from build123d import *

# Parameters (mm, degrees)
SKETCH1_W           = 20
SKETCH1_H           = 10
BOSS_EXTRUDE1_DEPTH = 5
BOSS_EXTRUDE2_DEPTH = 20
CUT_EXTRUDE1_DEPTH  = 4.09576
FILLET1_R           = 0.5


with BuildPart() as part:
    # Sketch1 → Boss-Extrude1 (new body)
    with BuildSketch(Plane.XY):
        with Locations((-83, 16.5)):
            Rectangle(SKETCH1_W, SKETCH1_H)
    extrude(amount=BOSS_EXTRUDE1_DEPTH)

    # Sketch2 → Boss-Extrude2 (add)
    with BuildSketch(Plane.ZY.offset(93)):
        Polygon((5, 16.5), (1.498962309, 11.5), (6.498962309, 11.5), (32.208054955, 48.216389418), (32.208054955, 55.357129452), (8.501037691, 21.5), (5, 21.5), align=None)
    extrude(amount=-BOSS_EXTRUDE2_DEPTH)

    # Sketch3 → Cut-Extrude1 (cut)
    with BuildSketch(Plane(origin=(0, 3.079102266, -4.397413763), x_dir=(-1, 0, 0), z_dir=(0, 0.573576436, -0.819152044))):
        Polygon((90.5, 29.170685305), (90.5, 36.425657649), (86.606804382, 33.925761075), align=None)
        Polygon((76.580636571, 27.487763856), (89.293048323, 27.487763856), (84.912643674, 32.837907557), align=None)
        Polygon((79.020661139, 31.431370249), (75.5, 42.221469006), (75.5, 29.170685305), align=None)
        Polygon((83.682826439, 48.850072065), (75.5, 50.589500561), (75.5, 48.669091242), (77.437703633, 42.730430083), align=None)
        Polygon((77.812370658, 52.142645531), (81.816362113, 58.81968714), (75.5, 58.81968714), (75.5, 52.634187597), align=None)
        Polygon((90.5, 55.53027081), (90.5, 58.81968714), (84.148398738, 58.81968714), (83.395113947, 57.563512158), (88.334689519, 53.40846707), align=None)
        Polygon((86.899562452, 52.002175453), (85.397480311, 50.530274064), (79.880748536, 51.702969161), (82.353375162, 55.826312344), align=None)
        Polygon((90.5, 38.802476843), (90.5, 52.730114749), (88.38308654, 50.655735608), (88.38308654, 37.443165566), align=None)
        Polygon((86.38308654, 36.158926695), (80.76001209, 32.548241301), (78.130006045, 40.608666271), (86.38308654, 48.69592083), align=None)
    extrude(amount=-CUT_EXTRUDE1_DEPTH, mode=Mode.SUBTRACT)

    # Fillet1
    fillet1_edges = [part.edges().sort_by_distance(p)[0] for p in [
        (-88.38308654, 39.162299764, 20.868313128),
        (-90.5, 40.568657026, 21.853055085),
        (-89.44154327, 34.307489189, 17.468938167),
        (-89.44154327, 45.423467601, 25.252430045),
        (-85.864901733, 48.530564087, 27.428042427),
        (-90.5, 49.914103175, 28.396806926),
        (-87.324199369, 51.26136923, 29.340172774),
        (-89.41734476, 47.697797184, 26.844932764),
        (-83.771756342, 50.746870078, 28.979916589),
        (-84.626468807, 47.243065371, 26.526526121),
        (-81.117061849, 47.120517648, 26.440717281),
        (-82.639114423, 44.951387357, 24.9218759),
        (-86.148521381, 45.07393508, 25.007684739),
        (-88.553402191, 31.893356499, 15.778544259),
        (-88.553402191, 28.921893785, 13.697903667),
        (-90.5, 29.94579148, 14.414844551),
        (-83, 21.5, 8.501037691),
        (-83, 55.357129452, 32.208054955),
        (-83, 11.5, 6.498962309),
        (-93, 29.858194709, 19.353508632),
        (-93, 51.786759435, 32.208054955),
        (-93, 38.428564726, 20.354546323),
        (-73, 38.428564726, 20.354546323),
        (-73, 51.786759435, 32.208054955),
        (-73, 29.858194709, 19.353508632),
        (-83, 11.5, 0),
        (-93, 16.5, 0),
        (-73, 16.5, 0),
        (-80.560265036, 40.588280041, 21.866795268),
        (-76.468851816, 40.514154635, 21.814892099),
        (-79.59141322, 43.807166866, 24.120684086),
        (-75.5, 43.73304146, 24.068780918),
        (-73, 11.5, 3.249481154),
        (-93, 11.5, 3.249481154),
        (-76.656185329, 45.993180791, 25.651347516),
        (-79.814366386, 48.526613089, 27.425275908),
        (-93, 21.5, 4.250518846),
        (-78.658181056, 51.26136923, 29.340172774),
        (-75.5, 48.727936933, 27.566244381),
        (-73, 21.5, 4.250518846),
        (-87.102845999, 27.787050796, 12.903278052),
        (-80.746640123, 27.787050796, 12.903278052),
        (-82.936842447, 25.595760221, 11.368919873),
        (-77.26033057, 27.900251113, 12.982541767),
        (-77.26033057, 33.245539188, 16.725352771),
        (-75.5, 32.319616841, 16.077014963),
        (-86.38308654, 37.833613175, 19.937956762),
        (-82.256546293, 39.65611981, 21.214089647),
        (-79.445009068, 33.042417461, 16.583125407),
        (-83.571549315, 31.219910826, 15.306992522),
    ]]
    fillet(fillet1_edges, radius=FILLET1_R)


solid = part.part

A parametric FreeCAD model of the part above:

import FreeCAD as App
import Part
import Sketcher
from FreeCAD import Vector
Q = App.Units.Quantity


def edges_at(feature, points):
    """Names of the edges that pass closest to the given points."""
    edges = feature.Shape.Edges
    near = lambda p: min(range(len(edges)), key=lambda i: edges[i].distToShape(Part.Vertex(*p))[0])
    return sorted({f"Edge{near(p) + 1}" for p in points})


def add_polygon(sketch, points):
    """Adds a closed chain of lines whose ends are joined by coincident constraints."""
    first, n = sketch.GeometryCount, len(points)
    for a, b in zip(points, points[1:] + points[:1]):
        sketch.addGeometry(Part.LineSegment(App.Vector(*a, 0), App.Vector(*b, 0)), False)
    for i in range(n):
        sketch.addConstraint(Sketcher.Constraint("Coincident", first + i, 2, first + (i + 1) % n, 1))

doc = App.newDocument("Part")
body = doc.addObject("PartDesign::Body", "Body")

# Sketch on XY plane
sketch1 = body.newObject("Sketcher::SketchObject", "Sketch")
sketch1.AttachmentSupport = (doc.getObject("XY_Plane"), [""])
sketch1.MapMode = "FlatFace"
add_polygon(sketch1, [(-93, 22), (-93, 12), (-73, 12), (-73, 22)])  # lines 0-3
sketch1.addConstraint([
    Sketcher.Constraint("Vertical", 0),
    Sketcher.Constraint("Horizontal", 1),
    Sketcher.Constraint("Vertical", 2),
    Sketcher.Constraint("Horizontal", 3),
    Sketcher.Constraint("DistanceX", 1, 1, 1, 2, Q("20 mm")),
    Sketcher.Constraint("DistanceY", 0, 2, 0, 1, Q("10 mm")),
    Sketcher.Constraint("DistanceX", 0, 2, -1, 1, Q("93 mm")),
    Sketcher.Constraint("DistanceY", -1, 1, 0, 2, Q("11.5 mm")),
])
pad1 = body.newObject("PartDesign::Pad", "Pad")
pad1.Profile = sketch1
pad1.Length = 5

# Sketch on YZ plane
sketch2 = body.newObject("Sketcher::SketchObject", "Sketch001")
sketch2.AttachmentSupport = (doc.getObject("YZ_Plane"), [""])
sketch2.MapMode = "FlatFace"
sketch2.AttachmentOffset = App.Placement(Vector(0, 0, -93), App.Rotation())
add_polygon(sketch2, [(16.5, 5), (11.5, 1.5), (11.5, 6.5), (48.2, 32.2), (55.4, 32.2), (21.5, 8.5), (21.5, 5)])  # lines 0-6
sketch2.addConstraint([
    Sketcher.Constraint("Vertical", 1),
    Sketcher.Constraint("Horizontal", 3),
    Sketcher.Constraint("Vertical", 5),
    Sketcher.Constraint("Horizontal", 6),
    Sketcher.Constraint("Parallel", 0, 2),
    Sketcher.Constraint("Parallel", 2, 4),
    Sketcher.Constraint("Equal", 6, 1),
    Sketcher.Constraint("DistanceX", 6, 2, 6, 1, Q("5 mm")),
    Sketcher.Constraint("Angle", 0, Q("-145 deg")),
    Sketcher.Constraint("DistanceY", -1, 1, 5, 2, Q("5 mm")),
    Sketcher.Constraint("DistanceX", 1, 2, 4, 2, Q("10 mm")),
    Sketcher.Constraint("DistanceX", -1, 1, 0, 2, Q("11.5 mm")),
    Sketcher.Constraint("DistanceX", 3, 1, 3, 2, Q("7.14074 mm")),
    Sketcher.Constraint("DistanceX", -1, 1, 2, 2, Q("48.216389 mm")),
])
pad2 = body.newObject("PartDesign::Pad", "Pad001")
pad2.Profile = sketch2
pad2.Length = 20

# Sketch on an angled plane
sketch3 = body.newObject("Sketcher::SketchObject", "Sketch002")
sketch3.Placement = App.Placement(Vector(0, 3.079102, -4.397414), App.Rotation(Vector(-1, 0, 0), Vector(0, 0.819152044, 0.573576436), Vector(0, 0.573576436, -0.819152044), "ZXY"))
add_polygon(sketch3, [(90.5, 29.2), (90.5, 36.4), (86.6, 33.9)])  # lines 0-2
add_polygon(sketch3, [(76.6, 27.5), (89.3, 27.5), (84.9, 32.8)])  # lines 3-5
add_polygon(sketch3, [(79, 31.4), (75.5, 42.2), (75.5, 29.2)])  # lines 6-8
add_polygon(sketch3, [(83.7, 48.9), (75.5, 50.6), (75.5, 48.7), (77.4, 42.7)])  # lines 9-12
add_polygon(sketch3, [(77.8, 52.1), (81.8, 58.8), (75.5, 58.8), (75.5, 52.6)])  # lines 13-16
add_polygon(sketch3, [(90.5, 55.5), (90.5, 58.8), (84.1, 58.8), (83.4, 57.6), (88.3, 53.4)])  # lines 17-21
add_polygon(sketch3, [(85.4, 50.5), (86.9, 52), (82.4, 55.8), (79.9, 51.7)])  # lines 22-25
add_polygon(sketch3, [(90.5, 38.8), (90.5, 52.7), (88.4, 50.7), (88.4, 37.4)])  # lines 26-29
add_polygon(sketch3, [(80.8, 32.5), (86.4, 36.2), (86.4, 48.7), (78.1, 40.6)])  # lines 30-33
sketch3.addConstraint([
    Sketcher.Constraint("Vertical", 0),
    Sketcher.Constraint("Horizontal", 3),
    Sketcher.Constraint("Vertical", 7),
    Sketcher.Constraint("Vertical", 10),
    Sketcher.Constraint("Horizontal", 14),
    Sketcher.Constraint("Vertical", 15),
    Sketcher.Constraint("Vertical", 17),
    Sketcher.Constraint("Horizontal", 18),
    Sketcher.Constraint("Vertical", 26),
    Sketcher.Constraint("Vertical", 28),
    Sketcher.Constraint("Vertical", 31),
    Sketcher.Constraint("Parallel", 2, 4),
    Sketcher.Constraint("Parallel", 1, 5),
    Sketcher.Constraint("Parallel", 5, 8),
    Sketcher.Constraint("Parallel", 6, 11),
    Sketcher.Constraint("Parallel", 9, 16),
    Sketcher.Constraint("Parallel", 13, 19),
    Sketcher.Constraint("Parallel", 12, 21),
    Sketcher.Constraint("Parallel", 21, 22),
    Sketcher.Constraint("Parallel", 20, 23),
    Sketcher.Constraint("Parallel", 19, 24),
    Sketcher.Constraint("Parallel", 16, 25),
    Sketcher.Constraint("Parallel", 22, 27),
    Sketcher.Constraint("Parallel", 8, 29),
    Sketcher.Constraint("Parallel", 29, 30),
    Sketcher.Constraint("Parallel", 27, 32),
    Sketcher.Constraint("Parallel", 11, 33),
    Sketcher.Constraint("Horizontal", 2, 2, 7, 2),
    Sketcher.Constraint("Horizontal", 14, 2, 17, 2),
    Sketcher.Constraint("Vertical", 7, 2, 9, 2),
    Sketcher.Constraint("Vertical", 10, 2, 14, 2),
    Sketcher.Constraint("Vertical", 2, 2, 17, 2),
    Sketcher.Constraint("Vertical", 21, 2, 26, 2),
    Sketcher.Constraint("DistanceX", 6, 2, 0, 2, Q("15 mm")),
    Sketcher.Constraint("DistanceX", 30, 2, 28, 2, Q("2 mm")),
    Sketcher.Constraint("DistanceX", -1, 1, 0, 2, Q("90.5 mm")),
    Sketcher.Constraint("DistanceX", 18, 2, 18, 1, Q("6.351601 mm")),
    Sketcher.Constraint("DistanceY", 15, 2, 15, 1, Q("6.1855 mm")),
    Sketcher.Constraint("DistanceX", 3, 1, 3, 2, Q("12.712412 mm")),
    Sketcher.Constraint("DistanceY", 10, 2, 10, 1, Q("1.920409 mm")),
    Sketcher.Constraint("DistanceY", 28, 2, 28, 1, Q("13.21257 mm")),
    Sketcher.Constraint("DistanceY", -1, 1, 9, 2, Q("50.589501 mm")),
    Sketcher.Constraint("DistanceY", 23, 2, 19, 2, Q("1.7372 mm")),
    Sketcher.Constraint("DistanceY", 25, 2, 22, 2, Q("1.471901 mm")),
    Sketcher.Constraint("DistanceY", 12, 2, 25, 2, Q("1.680202 mm")),
    Sketcher.Constraint("DistanceY", 3, 2, 28, 2, Q("9.955402 mm")),
    Sketcher.Constraint("Distance", 1, Q("4.626711 mm")),
    Sketcher.Constraint("Distance", 4, Q("6.914621 mm")),
    Sketcher.Constraint("Distance", 9, Q("8.36566 mm")),
    Sketcher.Constraint("Distance", 11, Q("6.246791 mm")),
    Sketcher.Constraint("Distance", 12, Q("8.743659 mm")),
    Sketcher.Constraint("Distance", 20, Q("6.454751 mm")),
    Sketcher.Constraint("Distance", 29, Q("2.51576 mm")),
    Sketcher.Constraint("DistanceX", 14, 2, 14, 1, Q("6.316362 mm")),
    Sketcher.Constraint("DistanceY", 0, 1, 0, 2, Q("7.254972 mm")),
    Sketcher.Constraint("DistanceY", 7, 2, 7, 1, Q("13.050784 mm")),
    Sketcher.Constraint("DistanceY", 17, 1, 17, 2, Q("3.289416 mm")),
    Sketcher.Constraint("DistanceY", 26, 1, 26, 2, Q("13.927638 mm")),
    Sketcher.Constraint("DistanceY", 31, 1, 31, 2, Q("12.536994 mm")),
    Sketcher.Constraint("DistanceY", -1, 1, 1, 2, Q("33.925761 mm")),
    Sketcher.Constraint("DistanceX", -1, 1, 3, 2, Q("89.293048 mm")),
    Sketcher.Constraint("DistanceX", -1, 1, 16, 2, Q("77.812371 mm")),
    Sketcher.Constraint("DistanceX", -1, 1, 20, 2, Q("88.33469 mm")),
    Sketcher.Constraint("DistanceY", -1, 1, 21, 2, Q("55.530271 mm")),
    Sketcher.Constraint("DistanceX", -1, 1, 24, 2, Q("79.880749 mm")),
    Sketcher.Constraint("DistanceY", -1, 1, 31, 2, Q("48.695921 mm")),
    Sketcher.Constraint("DistanceY", -1, 1, 33, 2, Q("32.548241 mm")),
    Sketcher.Constraint("DistanceY", 3, 2, 2, 2, Q("1.682921 mm")),
])
pocket1 = body.newObject("PartDesign::Pocket", "Pocket")
pocket1.Profile = sketch3
pocket1.Length = 4.09576
doc.recompute()

fillet = body.newObject("PartDesign::Fillet", "Fillet")
fillet.Base = (pocket1, edges_at(pocket1, [
    (-88.383, 39.162, 20.868),
    (-90.5, 40.569, 21.853),
    (-89.442, 34.307, 17.469),
    (-89.442, 45.423, 25.252),
    (-85.865, 48.531, 27.428),
    (-90.5, 49.914, 28.397),
    (-87.324, 51.261, 29.34),
    (-89.417, 47.698, 26.845),
    (-83.772, 50.747, 28.98),
    (-84.626, 47.243, 26.527),
    (-81.117, 47.121, 26.441),
    (-82.639, 44.951, 24.922),
    (-86.149, 45.074, 25.008),
    (-88.553, 31.893, 15.779),
    (-88.553, 28.922, 13.698),
    (-90.5, 29.946, 14.415),
    (-83, 21.5, 8.501),
    (-83, 55.357, 32.208),
    (-83, 11.5, 6.499),
    (-93, 29.858, 19.354),
    (-93, 51.787, 32.208),
    (-93, 38.429, 20.355),
    (-73, 38.429, 20.355),
    (-73, 51.787, 32.208),
    (-73, 29.858, 19.354),
    (-83, 11.5, 0),
    (-93, 16.5, 0),
    (-73, 16.5, 0),
    (-80.56, 40.588, 21.867),
    (-76.469, 40.514, 21.815),
    (-79.591, 43.807, 24.121),
    (-75.5, 43.733, 24.069),
    (-73, 11.5, 3.249),
    (-93, 11.5, 3.249),
    (-76.656, 45.993, 25.651),
    (-79.814, 48.527, 27.425),
    (-93, 21.5, 4.251),
    (-78.658, 51.261, 29.34),
    (-75.5, 48.728, 27.566),
    (-73, 21.5, 4.251),
    (-87.103, 27.787, 12.903),
    (-80.747, 27.787, 12.903),
    (-82.937, 25.596, 11.369),
    (-77.26, 27.9, 12.983),
    (-77.26, 33.246, 16.725),
    (-75.5, 32.32, 16.077),
    (-86.383, 37.834, 19.938),
    (-82.257, 39.656, 21.214),
    (-79.445, 33.042, 16.583),
    (-83.572, 31.22, 15.307),
]))
fillet.Radius = 0.5

doc.recompute()
